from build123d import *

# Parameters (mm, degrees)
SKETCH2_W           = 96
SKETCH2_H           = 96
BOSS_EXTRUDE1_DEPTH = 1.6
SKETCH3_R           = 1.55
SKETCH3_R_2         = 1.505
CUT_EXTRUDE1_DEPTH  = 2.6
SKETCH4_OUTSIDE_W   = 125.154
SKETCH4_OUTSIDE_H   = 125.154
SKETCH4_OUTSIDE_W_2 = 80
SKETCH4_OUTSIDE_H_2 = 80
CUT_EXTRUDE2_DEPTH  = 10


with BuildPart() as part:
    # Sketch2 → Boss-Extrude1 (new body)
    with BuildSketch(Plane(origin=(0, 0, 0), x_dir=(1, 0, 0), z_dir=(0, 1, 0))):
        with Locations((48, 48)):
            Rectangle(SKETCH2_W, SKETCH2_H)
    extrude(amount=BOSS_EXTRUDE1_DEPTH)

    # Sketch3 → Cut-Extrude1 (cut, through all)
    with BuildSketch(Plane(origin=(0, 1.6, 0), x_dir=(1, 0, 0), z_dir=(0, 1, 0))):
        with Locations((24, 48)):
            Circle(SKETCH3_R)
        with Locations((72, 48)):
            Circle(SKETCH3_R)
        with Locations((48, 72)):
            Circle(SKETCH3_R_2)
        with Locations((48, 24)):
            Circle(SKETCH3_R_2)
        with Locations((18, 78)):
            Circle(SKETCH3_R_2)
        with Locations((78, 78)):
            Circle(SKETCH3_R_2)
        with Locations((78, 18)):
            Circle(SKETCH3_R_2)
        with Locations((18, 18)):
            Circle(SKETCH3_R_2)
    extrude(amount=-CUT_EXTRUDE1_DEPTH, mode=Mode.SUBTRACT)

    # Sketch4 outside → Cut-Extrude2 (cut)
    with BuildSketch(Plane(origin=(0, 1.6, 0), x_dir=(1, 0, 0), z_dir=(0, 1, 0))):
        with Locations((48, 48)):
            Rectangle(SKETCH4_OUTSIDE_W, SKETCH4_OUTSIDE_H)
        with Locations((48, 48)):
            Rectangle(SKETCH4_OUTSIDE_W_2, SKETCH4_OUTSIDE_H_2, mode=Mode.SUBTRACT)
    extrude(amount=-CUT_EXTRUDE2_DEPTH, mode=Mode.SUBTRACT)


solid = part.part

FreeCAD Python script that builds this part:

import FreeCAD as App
import Part
import Sketcher

V = App.Vector
Q = App.Units.Quantity

doc = App.newDocument("Part")
params = doc.addObject("Spreadsheet::Sheet", "Params")
for row, (alias, value) in enumerate([
    ("sketch1_width", "96 mm"),
    ("pad1_length", "1.6 mm"),
    ("sketch2_diameter", "3.1 mm"),
    ("sketch2_diameter2", "3.01 mm"),
    ("sketch3_width", "80 mm"),
    ("pocket2_length", "10 mm"),
], start=1):
    params.set(f"A{row}", alias)
    params.set(f"B{row}", "=" + value)
    params.setAlias(f"B{row}", alias)

body = doc.addObject("PartDesign::Body", "Body")

# Sketch on XZ plane
sketch1 = doc.addObject("Sketcher::SketchObject", "Sketch")
body.addObject(sketch1)
sketch1.AttachmentSupport = (doc.XZ_Plane, [""])
sketch1.MapMode = "FlatFace"
sketch1.addGeometry([
    Part.LineSegment(V(0, -96, 0), V(0, 0, 0)),
    Part.LineSegment(V(0, 0, 0), V(96, 0, 0)),
    Part.LineSegment(V(96, 0, 0), V(96, -96, 0)),
    Part.LineSegment(V(96, -96, 0), V(0, -96, 0)),
], False)
sketch1.addConstraint([
    Sketcher.Constraint("Coincident", 0, 2, 1, 1),
    Sketcher.Constraint("Coincident", 1, 2, 2, 1),
    Sketcher.Constraint("Coincident", 2, 2, 3, 1),
    Sketcher.Constraint("Coincident", 3, 2, 0, 1),
    Sketcher.Constraint("Vertical", 0),
    Sketcher.Constraint("Horizontal", 1),
    Sketcher.Constraint("Vertical", 2),
    Sketcher.Constraint("Horizontal", 3),
    Sketcher.Constraint("Coincident", 0, 2, -1, 1),
    Sketcher.Constraint("Equal", 3, 0),
    Sketcher.Constraint("DistanceX", 1, 1, 1, 2, Q("96 mm")),
])
sketch1.setExpression("Constraints[10]", "Params.sketch1_width")
pad1 = doc.addObject("PartDesign::Pad", "Pad")
body.addObject(pad1)
pad1.Profile = sketch1
pad1.setExpression("Length", "Params.pad1_length")
pad1.Reversed = True

# Sketch on XZ plane
sketch2 = doc.addObject("Sketcher::SketchObject", "Sketch001")
body.addObject(sketch2)
sketch2.AttachmentSupport = (doc.XZ_Plane, [""])
sketch2.MapMode = "FlatFace"
sketch2.AttachmentOffset = App.Placement(V(0, 0, -1.6), App.Rotation())
sketch2.addGeometry([
    Part.Circle(V(24, -48, 0), V(0, 0, 1), 1.6),  # 0
    Part.Circle(V(72, -48, 0), V(0, 0, 1), 1.6),  # 1
    Part.Circle(V(48, -72, 0), V(0, 0, 1), 1.5),  # 2
    Part.Circle(V(48, -24, 0), V(0, 0, 1), 1.5),  # 3
    Part.Circle(V(18, -78, 0), V(0, 0, 1), 1.5),  # 4
    Part.Circle(V(78, -78, 0), V(0, 0, 1), 1.5),  # 5
    Part.Circle(V(78, -18, 0), V(0, 0, 1), 1.5),  # 6
    Part.Circle(V(18, -18, 0), V(0, 0, 1), 1.5),  # 7
], False)
sketch2.addConstraint([
    Sketcher.Constraint("Equal", 0, 1),
    Sketcher.Constraint("Equal", 2, 3),
    Sketcher.Constraint("Equal", 3, 4),
    Sketcher.Constraint("Equal", 4, 5),
    Sketcher.Constraint("Equal", 5, 6),
    Sketcher.Constraint("Equal", 6, 7),
    Sketcher.Constraint("Horizontal", 0, 3, 1, 3),
    Sketcher.Constraint("Horizontal", 4, 3, 5, 3),
    Sketcher.Constraint("Horizontal", 6, 3, 7, 3),
    Sketcher.Constraint("Vertical", 2, 3, 3, 3),
    Sketcher.Constraint("Vertical", 5, 3, 6, 3),
    Sketcher.Constraint("Vertical", 4, 3, 7, 3),
    Sketcher.Constraint("Diameter", 0, Q("3.1 mm")),
    Sketcher.Constraint("Diameter", 2, Q("3.01 mm")),
    Sketcher.Constraint("DistanceX", -1, 1, 0, 3, Q("24 mm")),
    Sketcher.Constraint("DistanceY", 0, 3, -1, 1, Q("48 mm")),
    Sketcher.Constraint("DistanceX", -1, 1, 1, 3, Q("72 mm")),
    Sketcher.Constraint("DistanceX", -1, 1, 2, 3, Q("48 mm")),
    Sketcher.Constraint("DistanceY", 2, 3, -1, 1, Q("72 mm")),
    Sketcher.Constraint("DistanceY", 3, 3, -1, 1, Q("24 mm")),
    Sketcher.Constraint("DistanceX", -1, 1, 4, 3, Q("18 mm")),
    Sketcher.Constraint("DistanceY", 4, 3, -1, 1, Q("78 mm")),
    Sketcher.Constraint("DistanceX", -1, 1, 5, 3, Q("78 mm")),
    Sketcher.Constraint("DistanceY", 6, 3, -1, 1, Q("18 mm")),
])
sketch2.setExpression("Constraints[12]", "Params.sketch2_diameter")
sketch2.setExpression("Constraints[13]", "Params.sketch2_diameter2")
pocket1 = doc.addObject("PartDesign::Pocket", "Pocket")
body.addObject(pocket1)
pocket1.Profile = sketch2
pocket1.Type = "ThroughAll"
pocket1.Reversed = True

# Sketch on XZ plane
sketch3 = doc.addObject("Sketcher::SketchObject", "Sketch002")
body.addObject(sketch3)
sketch3.AttachmentSupport = (doc.XZ_Plane, [""])
sketch3.MapMode = "FlatFace"
sketch3.AttachmentOffset = App.Placement(V(0, 0, -1.6), App.Rotation())
sketch3.addGeometry([
    Part.LineSegment(V(-15, -111, 0), V(-15, 15, 0)),  # 0
    Part.LineSegment(V(-15, 15, 0), V(111, 15, 0)),  # 1
    Part.LineSegment(V(111, 15, 0), V(111, -111, 0)),  # 2
    Part.LineSegment(V(111, -111, 0), V(-15, -111, 0)),  # 3
    Part.LineSegment(V(88, -8, 0), V(8, -8, 0)),  # 4
    Part.LineSegment(V(8, -8, 0), V(8, -88, 0)),  # 5
    Part.LineSegment(V(8, -88, 0), V(88, -88, 0)),  # 6
    Part.LineSegment(V(88, -88, 0), V(88, -8, 0)),  # 7
], False)
sketch3.addConstraint([
    Sketcher.Constraint("Coincident", 0, 2, 1, 1),
    Sketcher.Constraint("Coincident", 1, 2, 2, 1),
    Sketcher.Constraint("Coincident", 2, 2, 3, 1),
    Sketcher.Constraint("Coincident", 3, 2, 0, 1),
    Sketcher.Constraint("Coincident", 4, 2, 5, 1),
    Sketcher.Constraint("Coincident", 5, 2, 6, 1),
    Sketcher.Constraint("Coincident", 6, 2, 7, 1),
    Sketcher.Constraint("Coincident", 7, 2, 4, 1),
    Sketcher.Constraint("Vertical", 0),
    Sketcher.Constraint("Horizontal", 1),
    Sketcher.Constraint("Vertical", 2),
    Sketcher.Constraint("Horizontal", 3),
    Sketcher.Constraint("Horizontal", 4),
    Sketcher.Constraint("Vertical", 5),
    Sketcher.Constraint("Horizontal", 6),
    Sketcher.Constraint("Vertical", 7),
    Sketcher.Constraint("Equal", 3, 0),
    Sketcher.Constraint("Equal", 6, 5),
    Sketcher.Constraint("DistanceX", 4, 2, 4, 1, Q("80 mm")),
    Sketcher.Constraint("DistanceX", -1, 1, 4, 2, Q("8 mm")),
    Sketcher.Constraint("DistanceY", 4, 2, -1, 1, Q("8 mm")),
    Sketcher.Constraint("DistanceX", 1, 1, 1, 2, Q("125.154 mm")),
    Sketcher.Constraint("DistanceX", 0, 2, -1, 1, Q("14.577 mm")),
    Sketcher.Constraint("DistanceY", -1, 1, 0, 2, Q("14.577 mm")),
])
sketch3.setExpression("Constraints[18]", "Params.sketch3_width")
pocket2 = doc.addObject("PartDesign::Pocket", "Pocket001")
body.addObject(pocket2)
pocket2.Profile = sketch3
pocket2.setExpression("Length", "Params.pocket2_length")
pocket2.Reversed = True

doc.recompute()
